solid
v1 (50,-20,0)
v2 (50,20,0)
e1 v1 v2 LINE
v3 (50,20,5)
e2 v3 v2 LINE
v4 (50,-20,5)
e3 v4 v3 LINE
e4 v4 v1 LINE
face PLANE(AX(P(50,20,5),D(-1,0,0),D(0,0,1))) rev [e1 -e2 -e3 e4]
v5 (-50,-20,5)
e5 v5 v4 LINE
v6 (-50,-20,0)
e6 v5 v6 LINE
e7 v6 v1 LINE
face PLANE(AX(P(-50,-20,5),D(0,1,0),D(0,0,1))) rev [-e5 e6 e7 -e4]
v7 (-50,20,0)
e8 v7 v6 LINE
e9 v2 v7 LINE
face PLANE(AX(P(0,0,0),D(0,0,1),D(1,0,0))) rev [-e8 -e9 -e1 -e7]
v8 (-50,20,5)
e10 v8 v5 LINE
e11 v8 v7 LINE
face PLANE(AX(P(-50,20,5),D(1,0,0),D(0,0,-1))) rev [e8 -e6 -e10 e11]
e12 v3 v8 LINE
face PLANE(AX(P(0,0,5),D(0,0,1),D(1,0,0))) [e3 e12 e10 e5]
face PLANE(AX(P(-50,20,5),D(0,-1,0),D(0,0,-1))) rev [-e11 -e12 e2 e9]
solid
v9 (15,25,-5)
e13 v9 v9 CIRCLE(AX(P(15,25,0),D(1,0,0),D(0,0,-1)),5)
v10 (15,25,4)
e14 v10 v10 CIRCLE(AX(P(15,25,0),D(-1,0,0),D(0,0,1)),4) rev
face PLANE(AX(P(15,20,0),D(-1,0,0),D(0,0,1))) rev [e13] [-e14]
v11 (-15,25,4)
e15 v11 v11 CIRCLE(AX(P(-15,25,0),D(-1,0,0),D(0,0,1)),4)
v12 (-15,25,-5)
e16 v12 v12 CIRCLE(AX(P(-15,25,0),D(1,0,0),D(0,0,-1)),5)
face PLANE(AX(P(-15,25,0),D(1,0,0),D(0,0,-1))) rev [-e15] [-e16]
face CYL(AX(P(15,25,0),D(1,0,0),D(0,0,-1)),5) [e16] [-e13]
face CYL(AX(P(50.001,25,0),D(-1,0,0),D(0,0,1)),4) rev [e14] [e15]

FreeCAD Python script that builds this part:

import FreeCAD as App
import Part
import Sketcher
from FreeCAD import Vector


def add_polygon(sketch, points):
    """Adds a closed chain of lines whose ends are joined by coincident constraints."""
    first, n = sketch.GeometryCount, len(points)
    for a, b in zip(points, points[1:] + points[:1]):
        sketch.addGeometry(Part.LineSegment(App.Vector(*a, 0), App.Vector(*b, 0)), False)
    for i in range(n):
        sketch.addConstraint(Sketcher.Constraint("Coincident", first + i, 2, first + (i + 1) % n, 1))

doc = App.newDocument("Part")
params = doc.addObject("Spreadsheet::Sheet", "Params")
for row, (alias, value) in enumerate([
    ("sketch1_width", "100 mm"),
    ("sketch1_height", "40 mm"),
    ("pad1_length", "5 mm"),
    ("sketch2_width", "30 mm"),
    ("sketch2_height", "5 mm"),
    ("revolution_angle", "360 deg"),
    ("sketch3_diameter", "8 mm"),
    ("pocket1_length", "30 mm"),
], start=1):
    params.set(f"A{row}", alias)
    params.set(f"B{row}", "=" + value)
    params.setAlias(f"B{row}", alias)

body = doc.addObject("PartDesign::Body", "Body")

sketch1 = doc.addObject("Sketcher::SketchObject", "Sketch")
body.addObject(sketch1)
sketch1.AttachmentSupport = (doc.XY_Plane, [""])
sketch1.MapMode = "FlatFace"
add_polygon(sketch1, [(-50, 20), (-50, -20), (50, -20), (50, 20)])
sketch1.addConstraint([
    Sketcher.Constraint("Vertical", 0),
    Sketcher.Constraint("Horizontal", 1),
    Sketcher.Constraint("Vertical", 2),
    Sketcher.Constraint("Horizontal", 3),
    Sketcher.Constraint("Symmetric", 0, 2, 2, 2, -1, 1),
    Sketcher.Constraint("DistanceX", 1, 1, 1, 2, 100.0),
    Sketcher.Constraint("DistanceY", 0, 2, 0, 1, 40.0),
])
sketch1.setExpression("Constraints[9]", "Params.sketch1_width")
sketch1.setExpression("Constraints[10]", "Params.sketch1_height")
pad1 = doc.addObject("PartDesign::Pad", "Pad")
body.addObject(pad1)
pad1.Profile = sketch1
pad1.setExpression("Length", "Params.pad1_length")
body2 = doc.addObject("PartDesign::Body", "Body001")

sketch2 = doc.addObject("Sketcher::SketchObject", "Sketch001")
body2.addObject(sketch2)
sketch2.AttachmentSupport = (doc.getObject("XY_Plane001"), [""])
sketch2.MapMode = "FlatFace"
add_polygon(sketch2, [(15, 30), (15, 25), (-15, 25), (-15, 30)])
sketch2.addGeometry(Part.LineSegment(Vector(15, 25, 0), Vector(-15, 25, 0)), True)
sketch2.addConstraint([
    Sketcher.Constraint("Vertical", 0),
    Sketcher.Constraint("Horizontal", 1),
    Sketcher.Constraint("Vertical", 2),
    Sketcher.Constraint("Horizontal", 3),
    Sketcher.Constraint("Horizontal", 4),
    Sketcher.Constraint("Coincident", 4, 1, 0, 2),
    Sketcher.Constraint("Vertical", 2, 2, 4, 2),
    Sketcher.Constraint("DistanceX", 1, 2, 1, 1, 30.0),
    Sketcher.Constraint("DistanceY", 0, 2, 0, 1, 5.0),
    Sketcher.Constraint("DistanceX", -1, 1, 0, 2, 15.0),
    Sketcher.Constraint("DistanceY", -1, 1, 0, 2, 25.0),
])
sketch2.setExpression("Constraints[11]", "Params.sketch2_width")
sketch2.setExpression("Constraints[12]", "Params.sketch2_height")
revolution = doc.addObject("PartDesign::Revolution", "Revolution")
body2.addObject(revolution)
revolution.Profile = sketch2
revolution.ReferenceAxis = (sketch2, ["Axis0"])
revolution.setExpression("Angle", "Params.revolution_angle")

sketch3 = doc.addObject("Sketcher::SketchObject", "Sketch002")
body2.addObject(sketch3)
sketch3.AttachmentSupport = (doc.getObject("YZ_Plane001"), [""])
sketch3.MapMode = "FlatFace"
sketch3.AttachmentOffset = App.Placement(Vector(0, 0, -15), App.Rotation())
sketch3.addGeometry(Part.Circle(Vector(25, 0, 0), Vector(0, 0, 1), 4), False)
sketch3.addConstraint([
    Sketcher.Constraint("PointOnObject", 0, 3, -1),
    Sketcher.Constraint("Diameter", 0, 8.0),
    Sketcher.Constraint("DistanceX", -1, 1, 0, 3, 25.0),
])
sketch3.setExpression("Constraints[1]", "Params.sketch3_diameter")
pocket1 = doc.addObject("PartDesign::Pocket", "Pocket")
body2.addObject(pocket1)
pocket1.Profile = sketch3
pocket1.setExpression("Length", "Params.pocket1_length")
pocket1.Reversed = True

doc.recompute()
